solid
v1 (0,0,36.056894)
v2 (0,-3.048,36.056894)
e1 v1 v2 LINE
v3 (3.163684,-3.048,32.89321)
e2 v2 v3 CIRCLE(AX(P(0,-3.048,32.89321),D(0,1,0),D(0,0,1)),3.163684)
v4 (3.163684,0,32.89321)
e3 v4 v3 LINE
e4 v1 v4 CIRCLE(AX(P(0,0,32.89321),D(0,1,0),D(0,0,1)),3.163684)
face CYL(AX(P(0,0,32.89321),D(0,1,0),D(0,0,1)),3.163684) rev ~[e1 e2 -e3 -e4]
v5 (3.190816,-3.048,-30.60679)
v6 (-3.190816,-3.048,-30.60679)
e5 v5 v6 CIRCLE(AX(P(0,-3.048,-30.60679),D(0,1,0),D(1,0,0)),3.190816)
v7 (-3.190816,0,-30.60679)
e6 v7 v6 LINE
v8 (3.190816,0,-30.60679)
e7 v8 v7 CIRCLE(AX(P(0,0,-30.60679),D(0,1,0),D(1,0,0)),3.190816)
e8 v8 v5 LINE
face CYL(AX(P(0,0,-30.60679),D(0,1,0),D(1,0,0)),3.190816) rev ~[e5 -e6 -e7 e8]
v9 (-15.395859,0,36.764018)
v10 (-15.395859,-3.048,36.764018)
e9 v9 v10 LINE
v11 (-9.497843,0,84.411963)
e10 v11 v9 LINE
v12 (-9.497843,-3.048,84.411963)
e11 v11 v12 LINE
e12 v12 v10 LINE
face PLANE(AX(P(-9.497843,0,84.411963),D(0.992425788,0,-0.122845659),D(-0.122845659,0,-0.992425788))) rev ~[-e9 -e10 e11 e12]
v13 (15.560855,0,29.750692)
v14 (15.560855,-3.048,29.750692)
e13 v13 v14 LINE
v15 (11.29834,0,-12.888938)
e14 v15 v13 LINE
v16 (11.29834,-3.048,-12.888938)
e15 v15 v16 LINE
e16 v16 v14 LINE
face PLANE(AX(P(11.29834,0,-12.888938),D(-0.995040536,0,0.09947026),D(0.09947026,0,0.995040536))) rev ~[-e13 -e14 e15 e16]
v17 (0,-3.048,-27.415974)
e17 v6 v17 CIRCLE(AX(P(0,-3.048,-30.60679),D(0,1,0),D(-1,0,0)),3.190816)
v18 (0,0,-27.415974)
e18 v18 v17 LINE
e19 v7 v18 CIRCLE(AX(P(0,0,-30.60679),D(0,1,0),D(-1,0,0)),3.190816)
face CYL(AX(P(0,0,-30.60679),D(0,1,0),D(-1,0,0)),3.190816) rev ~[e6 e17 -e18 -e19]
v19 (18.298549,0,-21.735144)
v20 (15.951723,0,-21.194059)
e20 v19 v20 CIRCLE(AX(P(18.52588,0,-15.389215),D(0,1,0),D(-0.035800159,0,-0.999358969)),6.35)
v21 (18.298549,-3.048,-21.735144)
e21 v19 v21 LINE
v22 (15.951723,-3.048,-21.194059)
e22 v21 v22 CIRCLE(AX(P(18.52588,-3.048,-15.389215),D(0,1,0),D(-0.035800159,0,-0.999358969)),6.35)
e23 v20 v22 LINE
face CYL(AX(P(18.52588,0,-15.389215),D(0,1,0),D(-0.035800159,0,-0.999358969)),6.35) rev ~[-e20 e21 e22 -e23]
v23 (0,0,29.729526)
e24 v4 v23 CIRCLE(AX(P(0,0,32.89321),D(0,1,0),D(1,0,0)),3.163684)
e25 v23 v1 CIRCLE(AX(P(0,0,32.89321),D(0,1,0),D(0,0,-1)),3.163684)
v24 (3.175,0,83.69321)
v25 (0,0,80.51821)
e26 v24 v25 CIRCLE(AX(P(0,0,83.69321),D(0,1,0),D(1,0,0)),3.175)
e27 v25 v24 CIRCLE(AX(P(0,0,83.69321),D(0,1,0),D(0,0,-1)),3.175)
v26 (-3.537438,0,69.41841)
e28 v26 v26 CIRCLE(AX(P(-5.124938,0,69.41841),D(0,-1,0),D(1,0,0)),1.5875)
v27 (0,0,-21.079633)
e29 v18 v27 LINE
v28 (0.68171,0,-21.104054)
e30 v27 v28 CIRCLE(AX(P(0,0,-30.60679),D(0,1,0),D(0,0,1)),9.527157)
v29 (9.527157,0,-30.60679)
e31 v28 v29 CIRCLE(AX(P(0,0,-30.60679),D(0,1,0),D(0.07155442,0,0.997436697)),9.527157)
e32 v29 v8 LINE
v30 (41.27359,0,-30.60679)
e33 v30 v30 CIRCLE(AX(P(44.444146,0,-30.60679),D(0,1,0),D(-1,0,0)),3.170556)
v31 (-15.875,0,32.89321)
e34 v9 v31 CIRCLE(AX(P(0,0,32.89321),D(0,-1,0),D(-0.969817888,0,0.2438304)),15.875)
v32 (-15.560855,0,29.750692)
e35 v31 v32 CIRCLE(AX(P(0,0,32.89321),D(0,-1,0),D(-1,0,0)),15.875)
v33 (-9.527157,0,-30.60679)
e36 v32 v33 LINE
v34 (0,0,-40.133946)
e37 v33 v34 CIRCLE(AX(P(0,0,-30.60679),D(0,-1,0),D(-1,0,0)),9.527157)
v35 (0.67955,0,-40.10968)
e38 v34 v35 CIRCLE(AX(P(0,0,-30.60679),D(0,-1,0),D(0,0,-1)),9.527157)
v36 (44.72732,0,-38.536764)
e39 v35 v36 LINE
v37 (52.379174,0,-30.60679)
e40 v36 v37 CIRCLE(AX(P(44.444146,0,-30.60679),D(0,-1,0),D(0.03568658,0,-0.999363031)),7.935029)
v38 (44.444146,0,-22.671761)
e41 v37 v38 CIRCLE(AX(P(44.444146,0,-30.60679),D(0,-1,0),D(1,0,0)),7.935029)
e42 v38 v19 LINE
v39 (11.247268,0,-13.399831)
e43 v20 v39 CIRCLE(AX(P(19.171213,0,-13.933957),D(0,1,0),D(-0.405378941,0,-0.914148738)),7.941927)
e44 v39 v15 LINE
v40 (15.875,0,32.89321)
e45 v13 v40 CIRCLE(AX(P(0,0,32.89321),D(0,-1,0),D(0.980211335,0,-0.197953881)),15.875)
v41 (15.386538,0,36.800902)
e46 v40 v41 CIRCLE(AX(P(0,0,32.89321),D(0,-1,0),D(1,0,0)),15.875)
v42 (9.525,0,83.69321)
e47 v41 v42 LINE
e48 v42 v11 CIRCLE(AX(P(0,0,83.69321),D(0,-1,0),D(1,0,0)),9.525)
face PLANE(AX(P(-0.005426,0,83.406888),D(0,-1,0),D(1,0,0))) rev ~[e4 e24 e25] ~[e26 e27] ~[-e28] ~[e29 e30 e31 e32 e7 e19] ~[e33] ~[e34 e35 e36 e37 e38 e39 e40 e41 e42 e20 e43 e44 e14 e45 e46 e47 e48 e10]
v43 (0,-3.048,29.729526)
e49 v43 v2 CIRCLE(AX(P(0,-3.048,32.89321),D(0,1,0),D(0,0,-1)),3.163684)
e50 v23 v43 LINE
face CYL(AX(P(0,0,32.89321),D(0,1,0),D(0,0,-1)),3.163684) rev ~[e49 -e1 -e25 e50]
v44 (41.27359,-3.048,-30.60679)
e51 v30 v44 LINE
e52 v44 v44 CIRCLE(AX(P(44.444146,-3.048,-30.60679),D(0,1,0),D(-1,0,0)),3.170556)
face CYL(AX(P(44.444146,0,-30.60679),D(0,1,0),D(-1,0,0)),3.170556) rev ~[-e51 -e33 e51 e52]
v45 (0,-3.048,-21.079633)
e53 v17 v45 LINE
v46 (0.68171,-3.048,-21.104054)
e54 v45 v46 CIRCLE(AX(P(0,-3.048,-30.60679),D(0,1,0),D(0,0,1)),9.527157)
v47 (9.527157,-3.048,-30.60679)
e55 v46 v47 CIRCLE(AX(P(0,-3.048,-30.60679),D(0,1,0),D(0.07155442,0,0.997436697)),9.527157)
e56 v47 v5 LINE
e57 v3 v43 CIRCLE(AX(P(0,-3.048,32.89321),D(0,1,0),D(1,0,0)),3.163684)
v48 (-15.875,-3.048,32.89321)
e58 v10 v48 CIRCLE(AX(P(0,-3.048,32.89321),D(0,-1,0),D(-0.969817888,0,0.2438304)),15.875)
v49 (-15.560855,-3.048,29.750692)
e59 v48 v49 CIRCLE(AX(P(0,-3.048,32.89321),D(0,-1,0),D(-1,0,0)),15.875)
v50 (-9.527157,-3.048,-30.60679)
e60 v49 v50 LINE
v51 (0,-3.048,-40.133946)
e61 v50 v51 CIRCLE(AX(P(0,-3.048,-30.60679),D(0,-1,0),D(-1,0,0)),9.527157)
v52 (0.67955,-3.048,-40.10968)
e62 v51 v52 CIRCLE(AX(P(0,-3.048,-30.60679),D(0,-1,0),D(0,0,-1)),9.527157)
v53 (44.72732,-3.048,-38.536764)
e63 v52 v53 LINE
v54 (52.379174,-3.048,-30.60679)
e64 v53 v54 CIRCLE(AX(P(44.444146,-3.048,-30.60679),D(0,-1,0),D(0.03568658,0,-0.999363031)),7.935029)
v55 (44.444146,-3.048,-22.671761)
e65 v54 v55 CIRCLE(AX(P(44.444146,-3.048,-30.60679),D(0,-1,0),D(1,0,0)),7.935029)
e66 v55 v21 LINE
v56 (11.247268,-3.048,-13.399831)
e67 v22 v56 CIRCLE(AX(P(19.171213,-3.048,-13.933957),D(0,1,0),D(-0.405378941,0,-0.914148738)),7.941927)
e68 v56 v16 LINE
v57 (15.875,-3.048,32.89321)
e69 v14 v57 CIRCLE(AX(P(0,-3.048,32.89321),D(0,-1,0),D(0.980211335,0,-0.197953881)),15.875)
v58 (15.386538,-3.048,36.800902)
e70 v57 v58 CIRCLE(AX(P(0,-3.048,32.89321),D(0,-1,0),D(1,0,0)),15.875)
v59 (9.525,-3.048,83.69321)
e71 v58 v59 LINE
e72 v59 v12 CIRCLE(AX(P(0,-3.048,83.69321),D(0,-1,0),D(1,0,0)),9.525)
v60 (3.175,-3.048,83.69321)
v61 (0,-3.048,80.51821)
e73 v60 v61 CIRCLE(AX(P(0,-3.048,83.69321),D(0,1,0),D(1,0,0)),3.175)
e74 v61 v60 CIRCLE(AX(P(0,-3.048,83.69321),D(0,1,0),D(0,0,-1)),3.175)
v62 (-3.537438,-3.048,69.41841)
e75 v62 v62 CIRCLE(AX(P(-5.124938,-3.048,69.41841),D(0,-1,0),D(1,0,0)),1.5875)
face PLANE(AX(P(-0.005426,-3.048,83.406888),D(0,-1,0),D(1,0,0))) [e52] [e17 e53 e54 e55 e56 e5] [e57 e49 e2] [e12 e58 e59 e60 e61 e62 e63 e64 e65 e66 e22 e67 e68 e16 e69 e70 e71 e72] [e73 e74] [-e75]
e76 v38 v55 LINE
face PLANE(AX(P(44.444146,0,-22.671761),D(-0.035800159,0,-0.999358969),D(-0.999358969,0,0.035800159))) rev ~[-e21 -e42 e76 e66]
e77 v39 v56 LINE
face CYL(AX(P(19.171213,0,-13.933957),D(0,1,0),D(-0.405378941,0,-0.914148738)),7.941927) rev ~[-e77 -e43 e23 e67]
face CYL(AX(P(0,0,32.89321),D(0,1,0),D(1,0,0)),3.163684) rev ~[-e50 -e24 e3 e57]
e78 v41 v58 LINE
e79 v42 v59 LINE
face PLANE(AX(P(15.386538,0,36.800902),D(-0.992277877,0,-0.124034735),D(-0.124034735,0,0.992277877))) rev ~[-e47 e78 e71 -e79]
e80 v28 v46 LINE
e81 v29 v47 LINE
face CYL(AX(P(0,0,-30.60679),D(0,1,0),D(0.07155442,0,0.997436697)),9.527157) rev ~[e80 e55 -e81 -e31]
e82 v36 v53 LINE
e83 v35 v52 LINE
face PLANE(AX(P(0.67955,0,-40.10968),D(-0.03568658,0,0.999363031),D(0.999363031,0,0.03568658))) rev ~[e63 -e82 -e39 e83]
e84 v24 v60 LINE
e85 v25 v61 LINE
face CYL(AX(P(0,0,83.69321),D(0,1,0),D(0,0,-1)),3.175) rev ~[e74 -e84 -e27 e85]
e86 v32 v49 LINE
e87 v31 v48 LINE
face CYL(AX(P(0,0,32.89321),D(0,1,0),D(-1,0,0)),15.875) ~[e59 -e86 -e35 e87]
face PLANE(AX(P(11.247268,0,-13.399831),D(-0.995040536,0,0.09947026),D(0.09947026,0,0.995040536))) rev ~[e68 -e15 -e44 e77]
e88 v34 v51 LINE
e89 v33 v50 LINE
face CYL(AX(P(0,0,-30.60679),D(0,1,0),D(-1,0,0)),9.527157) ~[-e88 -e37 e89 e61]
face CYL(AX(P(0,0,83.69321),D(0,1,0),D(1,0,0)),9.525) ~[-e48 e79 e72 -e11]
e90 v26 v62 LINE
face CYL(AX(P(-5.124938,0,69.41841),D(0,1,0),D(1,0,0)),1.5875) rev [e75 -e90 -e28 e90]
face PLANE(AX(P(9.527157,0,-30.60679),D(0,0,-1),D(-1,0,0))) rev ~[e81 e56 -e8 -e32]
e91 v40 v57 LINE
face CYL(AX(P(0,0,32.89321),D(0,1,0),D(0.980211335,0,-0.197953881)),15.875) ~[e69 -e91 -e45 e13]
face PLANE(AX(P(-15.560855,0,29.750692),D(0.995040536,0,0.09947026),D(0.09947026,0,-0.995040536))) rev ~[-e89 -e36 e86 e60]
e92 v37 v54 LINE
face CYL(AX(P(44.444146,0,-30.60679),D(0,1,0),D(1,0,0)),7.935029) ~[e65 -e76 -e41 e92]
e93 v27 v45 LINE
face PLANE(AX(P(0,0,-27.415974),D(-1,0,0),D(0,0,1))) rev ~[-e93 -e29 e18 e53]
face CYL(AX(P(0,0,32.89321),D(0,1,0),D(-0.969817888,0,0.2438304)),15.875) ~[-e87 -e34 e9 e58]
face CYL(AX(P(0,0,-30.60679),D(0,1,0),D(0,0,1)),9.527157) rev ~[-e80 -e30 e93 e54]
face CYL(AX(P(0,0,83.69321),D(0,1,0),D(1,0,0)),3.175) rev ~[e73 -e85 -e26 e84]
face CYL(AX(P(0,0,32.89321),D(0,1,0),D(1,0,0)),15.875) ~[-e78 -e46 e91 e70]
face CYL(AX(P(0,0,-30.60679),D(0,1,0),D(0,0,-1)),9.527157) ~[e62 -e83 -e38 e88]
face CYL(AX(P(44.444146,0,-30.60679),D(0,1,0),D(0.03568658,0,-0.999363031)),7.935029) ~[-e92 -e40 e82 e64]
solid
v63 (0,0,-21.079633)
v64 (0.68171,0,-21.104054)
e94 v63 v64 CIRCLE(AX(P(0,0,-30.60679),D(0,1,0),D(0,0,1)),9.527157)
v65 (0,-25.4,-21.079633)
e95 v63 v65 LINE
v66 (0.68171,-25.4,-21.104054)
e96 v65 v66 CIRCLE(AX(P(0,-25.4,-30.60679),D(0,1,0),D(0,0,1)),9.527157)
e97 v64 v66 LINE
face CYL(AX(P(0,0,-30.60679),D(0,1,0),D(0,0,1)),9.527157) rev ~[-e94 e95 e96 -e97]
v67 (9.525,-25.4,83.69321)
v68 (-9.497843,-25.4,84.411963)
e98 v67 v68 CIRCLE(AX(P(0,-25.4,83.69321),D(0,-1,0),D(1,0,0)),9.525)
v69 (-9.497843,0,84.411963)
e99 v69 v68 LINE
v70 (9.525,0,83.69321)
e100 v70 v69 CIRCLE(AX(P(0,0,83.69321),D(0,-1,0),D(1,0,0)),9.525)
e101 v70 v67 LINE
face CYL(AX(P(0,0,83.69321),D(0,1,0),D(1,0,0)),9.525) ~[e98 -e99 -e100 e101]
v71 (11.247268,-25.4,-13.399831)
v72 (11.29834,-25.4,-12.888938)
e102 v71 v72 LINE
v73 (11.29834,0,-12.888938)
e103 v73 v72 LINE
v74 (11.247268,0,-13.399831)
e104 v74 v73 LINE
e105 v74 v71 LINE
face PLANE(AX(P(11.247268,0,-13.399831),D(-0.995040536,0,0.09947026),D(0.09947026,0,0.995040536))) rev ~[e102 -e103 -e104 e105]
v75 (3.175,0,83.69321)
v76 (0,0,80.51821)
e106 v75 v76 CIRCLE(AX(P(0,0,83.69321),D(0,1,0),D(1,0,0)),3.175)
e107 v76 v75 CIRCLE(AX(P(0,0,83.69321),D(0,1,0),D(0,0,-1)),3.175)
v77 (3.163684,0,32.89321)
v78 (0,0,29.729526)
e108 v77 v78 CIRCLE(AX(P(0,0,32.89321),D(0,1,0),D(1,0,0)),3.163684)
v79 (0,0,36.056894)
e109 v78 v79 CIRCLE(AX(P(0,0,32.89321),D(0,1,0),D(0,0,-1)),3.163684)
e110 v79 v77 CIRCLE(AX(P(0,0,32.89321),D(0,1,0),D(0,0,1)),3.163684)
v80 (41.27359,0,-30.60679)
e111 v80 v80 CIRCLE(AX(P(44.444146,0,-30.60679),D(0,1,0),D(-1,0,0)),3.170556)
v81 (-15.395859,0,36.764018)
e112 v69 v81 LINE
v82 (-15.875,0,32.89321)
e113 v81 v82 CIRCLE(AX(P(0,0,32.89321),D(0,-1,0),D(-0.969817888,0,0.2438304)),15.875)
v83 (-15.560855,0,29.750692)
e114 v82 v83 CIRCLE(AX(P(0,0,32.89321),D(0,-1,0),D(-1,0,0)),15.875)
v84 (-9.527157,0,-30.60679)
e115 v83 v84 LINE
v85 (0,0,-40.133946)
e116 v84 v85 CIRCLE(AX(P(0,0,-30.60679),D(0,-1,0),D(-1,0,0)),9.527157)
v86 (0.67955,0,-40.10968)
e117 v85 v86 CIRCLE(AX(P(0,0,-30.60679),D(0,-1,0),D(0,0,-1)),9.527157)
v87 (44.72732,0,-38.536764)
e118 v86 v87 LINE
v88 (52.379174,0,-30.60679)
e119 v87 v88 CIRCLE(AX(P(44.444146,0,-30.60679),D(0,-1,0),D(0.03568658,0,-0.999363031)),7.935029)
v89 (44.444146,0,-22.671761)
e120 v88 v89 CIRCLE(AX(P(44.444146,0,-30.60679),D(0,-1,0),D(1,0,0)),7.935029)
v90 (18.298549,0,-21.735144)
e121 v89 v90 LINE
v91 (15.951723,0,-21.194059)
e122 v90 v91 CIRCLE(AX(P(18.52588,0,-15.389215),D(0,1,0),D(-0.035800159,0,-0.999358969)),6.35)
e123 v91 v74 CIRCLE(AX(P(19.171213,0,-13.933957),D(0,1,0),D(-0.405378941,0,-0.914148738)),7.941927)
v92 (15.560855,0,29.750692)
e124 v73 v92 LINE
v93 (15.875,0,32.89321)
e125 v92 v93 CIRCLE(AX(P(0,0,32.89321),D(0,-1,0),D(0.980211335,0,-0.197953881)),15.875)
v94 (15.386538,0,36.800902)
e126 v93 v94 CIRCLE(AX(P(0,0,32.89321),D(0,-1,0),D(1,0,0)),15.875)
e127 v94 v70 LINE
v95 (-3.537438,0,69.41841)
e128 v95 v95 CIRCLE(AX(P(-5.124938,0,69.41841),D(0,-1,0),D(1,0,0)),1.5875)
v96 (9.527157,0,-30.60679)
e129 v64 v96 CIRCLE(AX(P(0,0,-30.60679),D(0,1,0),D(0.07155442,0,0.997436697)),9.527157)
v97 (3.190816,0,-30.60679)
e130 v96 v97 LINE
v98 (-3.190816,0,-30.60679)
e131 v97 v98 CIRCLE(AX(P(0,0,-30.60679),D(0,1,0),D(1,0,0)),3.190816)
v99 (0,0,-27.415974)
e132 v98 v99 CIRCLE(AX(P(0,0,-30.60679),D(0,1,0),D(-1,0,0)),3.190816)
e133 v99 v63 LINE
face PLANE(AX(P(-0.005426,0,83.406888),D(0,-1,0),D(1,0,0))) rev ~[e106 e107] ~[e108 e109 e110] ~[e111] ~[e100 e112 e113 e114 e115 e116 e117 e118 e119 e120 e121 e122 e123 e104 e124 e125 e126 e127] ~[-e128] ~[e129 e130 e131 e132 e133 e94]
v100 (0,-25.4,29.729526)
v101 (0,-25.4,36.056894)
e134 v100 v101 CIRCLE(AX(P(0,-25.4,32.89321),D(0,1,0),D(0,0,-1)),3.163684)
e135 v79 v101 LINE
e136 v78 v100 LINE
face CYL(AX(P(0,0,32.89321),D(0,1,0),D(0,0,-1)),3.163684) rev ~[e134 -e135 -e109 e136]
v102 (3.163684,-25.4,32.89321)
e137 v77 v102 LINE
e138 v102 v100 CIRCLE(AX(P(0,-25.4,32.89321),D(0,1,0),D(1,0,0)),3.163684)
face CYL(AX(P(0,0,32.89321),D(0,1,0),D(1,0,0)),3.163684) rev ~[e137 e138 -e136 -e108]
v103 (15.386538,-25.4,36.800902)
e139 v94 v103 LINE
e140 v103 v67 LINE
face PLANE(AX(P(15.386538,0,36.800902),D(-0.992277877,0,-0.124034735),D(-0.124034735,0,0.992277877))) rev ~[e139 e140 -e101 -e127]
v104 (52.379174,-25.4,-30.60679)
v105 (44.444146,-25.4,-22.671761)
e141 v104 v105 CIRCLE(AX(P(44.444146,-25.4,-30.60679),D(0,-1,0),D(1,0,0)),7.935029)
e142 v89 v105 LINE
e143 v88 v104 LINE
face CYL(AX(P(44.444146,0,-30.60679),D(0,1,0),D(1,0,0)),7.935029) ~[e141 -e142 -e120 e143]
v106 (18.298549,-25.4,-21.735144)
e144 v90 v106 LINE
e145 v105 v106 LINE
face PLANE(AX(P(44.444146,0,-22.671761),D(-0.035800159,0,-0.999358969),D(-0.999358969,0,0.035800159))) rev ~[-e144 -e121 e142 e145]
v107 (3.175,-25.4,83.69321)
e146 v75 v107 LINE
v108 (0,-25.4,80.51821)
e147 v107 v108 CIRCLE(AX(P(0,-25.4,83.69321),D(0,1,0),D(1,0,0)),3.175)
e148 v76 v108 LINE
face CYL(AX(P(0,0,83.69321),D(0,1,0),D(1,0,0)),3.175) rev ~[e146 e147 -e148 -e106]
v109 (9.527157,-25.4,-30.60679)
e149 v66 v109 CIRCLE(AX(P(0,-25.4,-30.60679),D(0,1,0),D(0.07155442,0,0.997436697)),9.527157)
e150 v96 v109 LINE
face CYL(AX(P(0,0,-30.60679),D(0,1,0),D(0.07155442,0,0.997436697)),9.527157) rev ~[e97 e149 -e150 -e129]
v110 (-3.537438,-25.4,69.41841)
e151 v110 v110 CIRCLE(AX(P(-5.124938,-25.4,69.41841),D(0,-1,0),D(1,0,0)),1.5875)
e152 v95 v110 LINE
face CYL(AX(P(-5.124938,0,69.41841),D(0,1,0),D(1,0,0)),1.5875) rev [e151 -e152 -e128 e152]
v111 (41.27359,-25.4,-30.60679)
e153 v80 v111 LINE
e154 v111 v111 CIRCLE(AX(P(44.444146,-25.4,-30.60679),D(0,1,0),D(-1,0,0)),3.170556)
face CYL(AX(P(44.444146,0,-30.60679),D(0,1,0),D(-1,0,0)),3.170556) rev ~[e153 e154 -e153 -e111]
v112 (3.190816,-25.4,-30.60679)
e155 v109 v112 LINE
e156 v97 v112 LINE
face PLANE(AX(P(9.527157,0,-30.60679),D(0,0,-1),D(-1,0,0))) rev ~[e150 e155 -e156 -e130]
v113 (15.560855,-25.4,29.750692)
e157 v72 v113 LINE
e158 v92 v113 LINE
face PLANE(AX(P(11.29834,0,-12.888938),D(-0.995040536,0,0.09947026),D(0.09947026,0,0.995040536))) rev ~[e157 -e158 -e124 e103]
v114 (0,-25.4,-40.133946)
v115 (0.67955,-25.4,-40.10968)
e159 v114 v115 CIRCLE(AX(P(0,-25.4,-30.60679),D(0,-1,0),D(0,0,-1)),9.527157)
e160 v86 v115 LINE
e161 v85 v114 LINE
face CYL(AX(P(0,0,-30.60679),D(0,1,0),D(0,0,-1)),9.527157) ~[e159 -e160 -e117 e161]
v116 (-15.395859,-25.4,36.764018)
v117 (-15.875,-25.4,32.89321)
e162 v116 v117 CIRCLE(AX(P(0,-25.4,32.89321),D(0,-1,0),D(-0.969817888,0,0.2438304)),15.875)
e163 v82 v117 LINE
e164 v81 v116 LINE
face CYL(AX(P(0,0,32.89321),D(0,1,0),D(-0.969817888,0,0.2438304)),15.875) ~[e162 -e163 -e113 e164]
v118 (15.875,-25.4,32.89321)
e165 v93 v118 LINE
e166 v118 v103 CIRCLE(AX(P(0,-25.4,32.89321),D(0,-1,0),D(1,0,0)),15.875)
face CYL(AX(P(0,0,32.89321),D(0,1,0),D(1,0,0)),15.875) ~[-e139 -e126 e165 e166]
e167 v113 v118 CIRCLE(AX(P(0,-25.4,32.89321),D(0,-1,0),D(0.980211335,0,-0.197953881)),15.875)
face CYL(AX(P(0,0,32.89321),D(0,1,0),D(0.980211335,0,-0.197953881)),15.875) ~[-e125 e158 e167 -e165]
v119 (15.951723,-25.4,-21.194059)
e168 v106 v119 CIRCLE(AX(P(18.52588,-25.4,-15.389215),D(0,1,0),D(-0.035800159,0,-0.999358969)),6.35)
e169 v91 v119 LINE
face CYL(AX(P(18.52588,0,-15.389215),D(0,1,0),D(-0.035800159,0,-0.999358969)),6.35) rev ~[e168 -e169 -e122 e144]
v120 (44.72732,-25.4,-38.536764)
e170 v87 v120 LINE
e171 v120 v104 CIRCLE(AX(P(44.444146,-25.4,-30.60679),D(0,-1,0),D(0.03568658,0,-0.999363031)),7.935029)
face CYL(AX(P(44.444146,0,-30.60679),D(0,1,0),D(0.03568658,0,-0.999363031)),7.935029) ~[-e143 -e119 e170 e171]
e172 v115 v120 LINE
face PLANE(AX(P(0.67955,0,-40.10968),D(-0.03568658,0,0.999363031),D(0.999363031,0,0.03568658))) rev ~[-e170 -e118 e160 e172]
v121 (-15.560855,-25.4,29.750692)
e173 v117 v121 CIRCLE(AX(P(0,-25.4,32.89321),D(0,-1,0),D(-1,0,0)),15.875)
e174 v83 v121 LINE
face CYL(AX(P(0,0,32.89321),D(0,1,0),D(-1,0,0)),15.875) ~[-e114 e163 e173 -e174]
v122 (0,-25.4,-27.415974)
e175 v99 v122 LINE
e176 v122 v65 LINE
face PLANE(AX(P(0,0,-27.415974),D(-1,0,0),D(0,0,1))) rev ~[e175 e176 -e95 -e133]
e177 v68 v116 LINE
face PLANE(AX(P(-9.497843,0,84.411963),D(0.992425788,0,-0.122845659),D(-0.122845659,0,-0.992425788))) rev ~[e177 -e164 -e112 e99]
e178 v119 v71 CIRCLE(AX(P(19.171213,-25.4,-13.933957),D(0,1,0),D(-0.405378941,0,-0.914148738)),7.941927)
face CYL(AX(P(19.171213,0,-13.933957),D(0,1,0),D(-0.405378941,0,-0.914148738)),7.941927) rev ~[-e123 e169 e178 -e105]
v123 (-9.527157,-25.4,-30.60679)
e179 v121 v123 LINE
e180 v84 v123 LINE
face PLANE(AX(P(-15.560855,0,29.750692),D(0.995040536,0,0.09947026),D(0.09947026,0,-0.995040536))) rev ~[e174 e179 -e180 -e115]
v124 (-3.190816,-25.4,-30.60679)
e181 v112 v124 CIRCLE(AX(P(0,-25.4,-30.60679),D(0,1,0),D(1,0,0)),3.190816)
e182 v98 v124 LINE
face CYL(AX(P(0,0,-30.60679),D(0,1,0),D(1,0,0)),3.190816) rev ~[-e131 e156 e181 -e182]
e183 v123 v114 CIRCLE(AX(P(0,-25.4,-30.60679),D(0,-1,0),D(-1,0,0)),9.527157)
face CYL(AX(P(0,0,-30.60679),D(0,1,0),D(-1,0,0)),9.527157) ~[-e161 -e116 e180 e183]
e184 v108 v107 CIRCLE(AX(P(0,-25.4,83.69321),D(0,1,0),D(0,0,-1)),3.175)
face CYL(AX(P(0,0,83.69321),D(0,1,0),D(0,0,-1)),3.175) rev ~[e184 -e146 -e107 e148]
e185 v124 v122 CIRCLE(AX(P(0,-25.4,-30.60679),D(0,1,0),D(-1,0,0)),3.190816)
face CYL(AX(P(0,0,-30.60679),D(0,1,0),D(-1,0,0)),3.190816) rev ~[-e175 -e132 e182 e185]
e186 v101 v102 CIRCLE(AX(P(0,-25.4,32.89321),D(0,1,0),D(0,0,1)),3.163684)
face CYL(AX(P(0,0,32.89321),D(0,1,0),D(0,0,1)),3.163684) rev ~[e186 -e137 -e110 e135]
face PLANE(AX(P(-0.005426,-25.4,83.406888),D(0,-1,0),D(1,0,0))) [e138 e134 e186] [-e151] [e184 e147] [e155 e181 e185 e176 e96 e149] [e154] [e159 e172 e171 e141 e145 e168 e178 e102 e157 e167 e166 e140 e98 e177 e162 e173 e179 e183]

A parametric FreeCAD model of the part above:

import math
import FreeCAD as App
import Part
import Sketcher
Q = App.Units.Quantity

doc = App.newDocument("Part")
params = doc.addObject("Spreadsheet::Sheet", "Params")
for row, (alias, value) in enumerate([
    ("sketch1_radius", "0.25 in"),
    ("sketch1_diameter", "0.125 in"),
    ("sketch1_radius2", "0.625 in"),
    ("sketch1_radius3", "0.375 in"),
    ("sketch1_radius4", "0.125 in"),
    ("pad1_length", "1 in"),
    ("sketch2_radius", "0.25 in"),
    ("sketch2_diameter", "0.125 in"),
    ("sketch2_radius2", "0.625 in"),
    ("sketch2_radius3", "0.375 in"),
    ("sketch2_radius4", "0.125 in"),
    ("pad2_length", "0.12 in"),
], start=1):
    params.set(f"A{row}", alias)
    params.set(f"B{row}", "=" + value)
    params.setAlias(f"B{row}", alias)

body = doc.addObject("PartDesign::Body", "Body")

# Sketch on XZ plane
sketch1 = body.newObject("Sketcher::SketchObject", "Sketch")
sketch1.AttachmentSupport = (doc.getObject("XZ_Plane"), [""])
sketch1.MapMode = "FlatFace"
sketch1.addGeometry([
    Part.ArcOfCircle(Part.Circle(App.Vector(0, -30.60679, 0), App.Vector(0, 0, 1), 9.527157), math.radians(-90), math.radians(-85.909751)),  # 0
    Part.LineSegment(App.Vector(0.67955, -40.10968, 0), App.Vector(44.72732, -38.536764, 0)),  # 1
    Part.ArcOfCircle(Part.Circle(App.Vector(44.444146, -30.60679, 0), App.Vector(0, 0, 1), 7.935029), math.radians(-87.954875), math.radians(0)),  # 2
    Part.ArcOfCircle(Part.Circle(App.Vector(44.444146, -30.60679, 0), App.Vector(0, 0, 1), 7.935029), math.radians(0), math.radians(90)),  # 3
    Part.LineSegment(App.Vector(44.444146, -22.671761, 0), App.Vector(18.298549, -21.735144, 0)),  # 4
    Part.ArcOfCircle(Part.Circle(App.Vector(18.52588, -15.389215, 0), App.Vector(0, 0, 1), 6.35), math.radians(-113.914876), math.radians(-92.051636)),  # 5
    Part.ArcOfCircle(Part.Circle(App.Vector(19.171213, -13.933957, 0), App.Vector(0, 0, 1), 7.941927), math.radians(176.143722), math.radians(246.085124)),  # 6
    Part.LineSegment(App.Vector(11.247268, -13.399831, 0), App.Vector(11.29834, -12.888938, 0)),  # 7
    Part.LineSegment(App.Vector(11.29834, -12.888938, 0), App.Vector(15.560855, 29.750692, 0)),  # 8
    Part.ArcOfCircle(Part.Circle(App.Vector(0, 32.89321, 0), App.Vector(0, 0, 1), 15.875), math.radians(-11.417333), math.radians(0)),  # 9
    Part.ArcOfCircle(Part.Circle(App.Vector(0, 32.89321, 0), App.Vector(0, 0, 1), 15.875), math.radians(0), math.radians(14.250033)),  # 10
    Part.LineSegment(App.Vector(15.386538, 36.800902, 0), App.Vector(9.525, 83.69321, 0)),  # 11
    Part.ArcOfCircle(Part.Circle(App.Vector(0, 83.69321, 0), App.Vector(0, 0, 1), 9.525), math.radians(0), math.radians(175.672366)),  # 12
    Part.LineSegment(App.Vector(-9.497843, 84.411963, 0), App.Vector(-15.395859, 36.764018, 0)),  # 13
    Part.ArcOfCircle(Part.Circle(App.Vector(0, 32.89321, 0), App.Vector(0, 0, 1), 15.875), math.radians(165.887275), math.radians(180)),  # 14
    Part.ArcOfCircle(Part.Circle(App.Vector(0, 32.89321, 0), App.Vector(0, 0, 1), 15.875), math.radians(-180), math.radians(-168.582667)),  # 15
    Part.LineSegment(App.Vector(-15.560855, 29.750692, 0), App.Vector(-9.527157, -30.60679, 0)),  # 16
    Part.ArcOfCircle(Part.Circle(App.Vector(0, -30.60679, 0), App.Vector(0, 0, 1), 9.527157), math.radians(180), math.radians(270)),  # 17
    Part.ArcOfCircle(Part.Circle(App.Vector(0, -30.60679, 0), App.Vector(0, 0, 1), 9.527157), math.radians(0), math.radians(85.896727)),  # 18
    Part.LineSegment(App.Vector(9.527157, -30.60679, 0), App.Vector(3.190816, -30.60679, 0)),  # 19
    Part.ArcOfCircle(Part.Circle(App.Vector(0, -30.60679, 0), App.Vector(0, 0, 1), 3.190816), math.radians(180), math.radians(360)),  # 20
    Part.ArcOfCircle(Part.Circle(App.Vector(0, -30.60679, 0), App.Vector(0, 0, 1), 3.190816), math.radians(90), math.radians(180)),  # 21
    Part.LineSegment(App.Vector(0, -27.415974, 0), App.Vector(0, -21.079633, 0)),  # 22
    Part.ArcOfCircle(Part.Circle(App.Vector(0, -30.60679, 0), App.Vector(0, 0, 1), 9.527157), math.radians(85.896727), math.radians(90)),  # 23
    Part.Circle(App.Vector(44.444146, -30.60679, 0), App.Vector(0, 0, 1), 3.170556),  # 24
    Part.ArcOfCircle(Part.Circle(App.Vector(0, 32.89321, 0), App.Vector(0, 0, 1), 3.163684), math.radians(0), math.radians(90)),  # 25
    Part.ArcOfCircle(Part.Circle(App.Vector(0, 32.89321, 0), App.Vector(0, 0, 1), 3.163684), math.radians(-90), math.radians(0)),  # 26
    Part.ArcOfCircle(Part.Circle(App.Vector(0, 32.89321, 0), App.Vector(0, 0, 1), 3.163684), math.radians(90), math.radians(270)),  # 27
    Part.Circle(App.Vector(-5.124938, 69.41841, 0), App.Vector(0, 0, 1), 1.5875),  # 28
    Part.ArcOfCircle(Part.Circle(App.Vector(0, 83.69321, 0), App.Vector(0, 0, 1), 3.175), math.radians(0), math.radians(270)),  # 29
    Part.ArcOfCircle(Part.Circle(App.Vector(0, 83.69321, 0), App.Vector(0, 0, 1), 3.175), math.radians(-90), math.radians(0)),  # 30
], False)
sketch1.addConstraint([
    Sketcher.Constraint("Coincident", 0, 2, 1, 1),
    Sketcher.Constraint("Tangent", 1, 2, 2, 1),
    Sketcher.Constraint("Tangent", 2, 2, 3, 1),
    Sketcher.Constraint("Coincident", 3, 2, 4, 1),
    Sketcher.Constraint("Tangent", 4, 2, 5, 2),
    Sketcher.Constraint("Tangent", 5, 1, 6, 2),
    Sketcher.Constraint("Coincident", 6, 1, 7, 1),
    Sketcher.Constraint("Coincident", 7, 2, 8, 1),
    Sketcher.Constraint("Coincident", 8, 2, 9, 1),
    Sketcher.Constraint("Tangent", 9, 2, 10, 1),
    Sketcher.Constraint("Coincident", 10, 2, 11, 1),
    Sketcher.Constraint("Coincident", 11, 2, 12, 1),
    Sketcher.Constraint("Coincident", 12, 2, 13, 1),
    Sketcher.Constraint("Coincident", 13, 2, 14, 1),
    Sketcher.Constraint("Tangent", 14, 2, 15, 1),
    Sketcher.Constraint("Coincident", 15, 2, 16, 1),
    Sketcher.Constraint("Coincident", 16, 2, 17, 1),
    Sketcher.Constraint("Tangent", 17, 2, 0, 1),
    Sketcher.Constraint("Coincident", 18, 1, 19, 1),
    Sketcher.Constraint("Coincident", 19, 2, 20, 2),
    Sketcher.Constraint("Tangent", 20, 1, 21, 2),
    Sketcher.Constraint("Coincident", 21, 1, 22, 1),
    Sketcher.Constraint("Coincident", 22, 2, 23, 2),
    Sketcher.Constraint("Tangent", 23, 1, 18, 2),
    Sketcher.Constraint("Tangent", 25, 1, 26, 2),
    Sketcher.Constraint("Tangent", 26, 1, 27, 2),
    Sketcher.Constraint("Tangent", 27, 1, 25, 2),
    Sketcher.Constraint("Tangent", 29, 1, 30, 2),
    Sketcher.Constraint("Coincident", 30, 1, 29, 2),
    Sketcher.Constraint("Horizontal", 19),
    Sketcher.Constraint("Vertical", 22),
    Sketcher.Constraint("Coincident", 14, 3, 9, 3),
    Sketcher.Constraint("Coincident", 18, 3, 0, 3),
    Sketcher.Constraint("Coincident", 20, 3, 0, 3),
    Sketcher.Constraint("Coincident", 24, 3, 2, 3),
    Sketcher.Constraint("Coincident", 25, 3, 9, 3),
    Sketcher.Constraint("Coincident", 29, 3, 12, 3),
    Sketcher.Constraint("Equal", 2, 3),
    Sketcher.Constraint("Equal", 9, 10),
    Sketcher.Constraint("Equal", 10, 14),
    Sketcher.Constraint("Equal", 14, 15),
    Sketcher.Constraint("Equal", 0, 17),
    Sketcher.Constraint("Equal", 17, 18),
    Sketcher.Constraint("Equal", 20, 21),
    Sketcher.Constraint("Equal", 18, 23),
    Sketcher.Constraint("Symmetric", 9, 2, 14, 2, -2),
    Sketcher.Constraint("Symmetric", 16, 2, 18, 1, -2),
    Sketcher.Constraint("PointOnObject", 12, 3, -2),
    Sketcher.Constraint("PointOnObject", 17, 2, -2),
    Sketcher.Constraint("PointOnObject", 21, 1, -2),
    Sketcher.Constraint("PointOnObject", 26, 1, -2),
    Sketcher.Constraint("PointOnObject", 27, 1, -2),
    Sketcher.Constraint("PointOnObject", 30, 1, -2),
    Sketcher.Constraint("Parallel", 7, 8),
    Sketcher.Constraint("Horizontal", 0, 3, 2, 3),
    Sketcher.Constraint("Horizontal", 24, 3, 2, 2),
    Sketcher.Constraint("Horizontal", 27, 3, 9, 2),
    Sketcher.Constraint("Horizontal", 30, 3, 11, 2),
    Sketcher.Constraint("Horizontal", 8, 2, 15, 2),
    Sketcher.Constraint("Horizontal", 2, 2, 16, 2),
    Sketcher.Constraint("Horizontal", 19, 2, 20, 1),
    Sketcher.Constraint("Horizontal", 14, 2, 25, 1),
    Sketcher.Constraint("Horizontal", 11, 2, 29, 1),
    Sketcher.Constraint("Vertical", 24, 3, 3, 2),
    Sketcher.Constraint("Radius", 5, Q("0.25 in")),
    Sketcher.Constraint("Diameter", 28, Q("0.125 in")),
    Sketcher.Constraint("Radius", 9, Q("0.625 in")),
    Sketcher.Constraint("Radius", 12, Q("0.375 in")),
    Sketcher.Constraint("Radius", 29, Q("0.125 in")),
    Sketcher.Constraint("DistanceY", 9, 3, 12, 3, Q("2 in")),
    Sketcher.Constraint("DistanceY", 0, 3, 9, 3, Q("2.5 in")),
    Sketcher.Constraint("Diameter", 24, 6.341112),
    Sketcher.Constraint("Radius", 2, 7.935029),
    Sketcher.Constraint("DistanceY", 28, 3, 12, 3, Q("0.562 in")),
    Sketcher.Constraint("Radius", 0, 9.527157),
    Sketcher.Constraint("Radius", 6, 7.941927),
    Sketcher.Constraint("Radius", 20, 3.190816),
    Sketcher.Constraint("Radius", 25, 3.163684),
    Sketcher.Constraint("Distance", 7, 0.51344),
    Sketcher.Constraint("DistanceY", 0, 3, -1, 1, 30.60679),
    Sketcher.Constraint("DistanceX", -1, 1, 5, 3, 18.52588),
    Sketcher.Constraint("DistanceX", -1, 1, 0, 2, 0.67955),
    Sketcher.Constraint("DistanceX", -1, 1, 1, 2, 44.72732),
    Sketcher.Constraint("DistanceX", -1, 1, 4, 2, 18.298549),
    Sketcher.Constraint("DistanceY", 5, 1, -1, 1, 21.194059),
    Sketcher.Constraint("DistanceX", -1, 1, 6, 1, 11.247268),
    Sketcher.Constraint("DistanceX", -1, 1, 10, 2, 15.386538),
    Sketcher.Constraint("DistanceX", 13, 2, -1, 1, 15.395859),
    Sketcher.Constraint("DistanceX", -1, 1, 23, 1, 0.68171),
    Sketcher.Constraint("DistanceY", 8, 2, 10, 2, 7.05021),
    Sketcher.Constraint("Distance", 13, 48.011596),
    Sketcher.Constraint("DistanceX", 28, 3, -1, 1, 5.124938),
])
sketch1.setExpression("Constraints[64]", "Params.sketch1_radius")
sketch1.setExpression("Constraints[65]", "Params.sketch1_diameter")
sketch1.setExpression("Constraints[66]", "Params.sketch1_radius2")
sketch1.setExpression("Constraints[67]", "Params.sketch1_radius3")
sketch1.setExpression("Constraints[68]", "Params.sketch1_radius4")
pad1 = body.newObject("PartDesign::Pad", "Pad")
pad1.Profile = sketch1
pad1.setExpression("Length", "Params.pad1_length")
body2 = doc.addObject("PartDesign::Body", "Body001")

# Sketch on XZ plane
sketch2 = body2.newObject("Sketcher::SketchObject", "Sketch001")
sketch2.AttachmentSupport = (doc.getObject("XZ_Plane001"), [""])
sketch2.MapMode = "FlatFace"
sketch2.addGeometry([
    Part.ArcOfCircle(Part.Circle(App.Vector(0, -30.60679, 0), App.Vector(0, 0, 1), 9.527157), math.radians(-90), math.radians(-85.909751)),  # 0
    Part.LineSegment(App.Vector(0.67955, -40.10968, 0), App.Vector(44.72732, -38.536764, 0)),  # 1
    Part.ArcOfCircle(Part.Circle(App.Vector(44.444146, -30.60679, 0), App.Vector(0, 0, 1), 7.935029), math.radians(-87.954875), math.radians(0)),  # 2
    Part.ArcOfCircle(Part.Circle(App.Vector(44.444146, -30.60679, 0), App.Vector(0, 0, 1), 7.935029), math.radians(0), math.radians(90)),  # 3
    Part.LineSegment(App.Vector(44.444146, -22.671761, 0), App.Vector(18.298549, -21.735144, 0)),  # 4
    Part.ArcOfCircle(Part.Circle(App.Vector(18.52588, -15.389215, 0), App.Vector(0, 0, 1), 6.35), math.radians(-113.914876), math.radians(-92.051636)),  # 5
    Part.ArcOfCircle(Part.Circle(App.Vector(19.171213, -13.933957, 0), App.Vector(0, 0, 1), 7.941927), math.radians(176.143722), math.radians(246.085124)),  # 6
    Part.LineSegment(App.Vector(11.247268, -13.399831, 0), App.Vector(11.29834, -12.888938, 0)),  # 7
    Part.LineSegment(App.Vector(11.29834, -12.888938, 0), App.Vector(15.560855, 29.750692, 0)),  # 8
    Part.ArcOfCircle(Part.Circle(App.Vector(0, 32.89321, 0), App.Vector(0, 0, 1), 15.875), math.radians(-11.417333), math.radians(0)),  # 9
    Part.ArcOfCircle(Part.Circle(App.Vector(0, 32.89321, 0), App.Vector(0, 0, 1), 15.875), math.radians(0), math.radians(14.250033)),  # 10
    Part.LineSegment(App.Vector(15.386538, 36.800902, 0), App.Vector(9.525, 83.69321, 0)),  # 11
    Part.ArcOfCircle(Part.Circle(App.Vector(0, 83.69321, 0), App.Vector(0, 0, 1), 9.525), math.radians(0), math.radians(175.672366)),  # 12
    Part.LineSegment(App.Vector(-9.497843, 84.411963, 0), App.Vector(-15.395859, 36.764018, 0)),  # 13
    Part.ArcOfCircle(Part.Circle(App.Vector(0, 32.89321, 0), App.Vector(0, 0, 1), 15.875), math.radians(165.887275), math.radians(180)),  # 14
    Part.ArcOfCircle(Part.Circle(App.Vector(0, 32.89321, 0), App.Vector(0, 0, 1), 15.875), math.radians(-180), math.radians(-168.582667)),  # 15
    Part.LineSegment(App.Vector(-15.560855, 29.750692, 0), App.Vector(-9.527157, -30.60679, 0)),  # 16
    Part.ArcOfCircle(Part.Circle(App.Vector(0, -30.60679, 0), App.Vector(0, 0, 1), 9.527157), math.radians(180), math.radians(270)),  # 17
    Part.ArcOfCircle(Part.Circle(App.Vector(0, -30.60679, 0), App.Vector(0, 0, 1), 9.527157), math.radians(0), math.radians(85.896727)),  # 18
    Part.LineSegment(App.Vector(9.527157, -30.60679, 0), App.Vector(3.190816, -30.60679, 0)),  # 19
    Part.ArcOfCircle(Part.Circle(App.Vector(0, -30.60679, 0), App.Vector(0, 0, 1), 3.190816), math.radians(180), math.radians(360)),  # 20
    Part.ArcOfCircle(Part.Circle(App.Vector(0, -30.60679, 0), App.Vector(0, 0, 1), 3.190816), math.radians(90), math.radians(180)),  # 21
    Part.LineSegment(App.Vector(0, -27.415974, 0), App.Vector(0, -21.079633, 0)),  # 22
    Part.ArcOfCircle(Part.Circle(App.Vector(0, -30.60679, 0), App.Vector(0, 0, 1), 9.527157), math.radians(85.896727), math.radians(90)),  # 23
    Part.Circle(App.Vector(44.444146, -30.60679, 0), App.Vector(0, 0, 1), 3.170556),  # 24
    Part.ArcOfCircle(Part.Circle(App.Vector(0, 32.89321, 0), App.Vector(0, 0, 1), 3.163684), math.radians(0), math.radians(90)),  # 25
    Part.ArcOfCircle(Part.Circle(App.Vector(0, 32.89321, 0), App.Vector(0, 0, 1), 3.163684), math.radians(-90), math.radians(0)),  # 26
    Part.ArcOfCircle(Part.Circle(App.Vector(0, 32.89321, 0), App.Vector(0, 0, 1), 3.163684), math.radians(90), math.radians(270)),  # 27
    Part.Circle(App.Vector(-5.124938, 69.41841, 0), App.Vector(0, 0, 1), 1.5875),  # 28
    Part.ArcOfCircle(Part.Circle(App.Vector(0, 83.69321, 0), App.Vector(0, 0, 1), 3.175), math.radians(0), math.radians(270)),  # 29
    Part.ArcOfCircle(Part.Circle(App.Vector(0, 83.69321, 0), App.Vector(0, 0, 1), 3.175), math.radians(-90), math.radians(0)),  # 30
], False)
sketch2.addConstraint([
    Sketcher.Constraint("Coincident", 0, 2, 1, 1),
    Sketcher.Constraint("Tangent", 1, 2, 2, 1),
    Sketcher.Constraint("Tangent", 2, 2, 3, 1),
    Sketcher.Constraint("Coincident", 3, 2, 4, 1),
    Sketcher.Constraint("Tangent", 4, 2, 5, 2),
    Sketcher.Constraint("Tangent", 5, 1, 6, 2),
    Sketcher.Constraint("Coincident", 6, 1, 7, 1),
    Sketcher.Constraint("Coincident", 7, 2, 8, 1),
    Sketcher.Constraint("Coincident", 8, 2, 9, 1),
    Sketcher.Constraint("Tangent", 9, 2, 10, 1),
    Sketcher.Constraint("Coincident", 10, 2, 11, 1),
    Sketcher.Constraint("Coincident", 11, 2, 12, 1),
    Sketcher.Constraint("Coincident", 12, 2, 13, 1),
    Sketcher.Constraint("Coincident", 13, 2, 14, 1),
    Sketcher.Constraint("Tangent", 14, 2, 15, 1),
    Sketcher.Constraint("Coincident", 15, 2, 16, 1),
    Sketcher.Constraint("Coincident", 16, 2, 17, 1),
    Sketcher.Constraint("Tangent", 17, 2, 0, 1),
    Sketcher.Constraint("Coincident", 18, 1, 19, 1),
    Sketcher.Constraint("Coincident", 19, 2, 20, 2),
    Sketcher.Constraint("Tangent", 20, 1, 21, 2),
    Sketcher.Constraint("Coincident", 21, 1, 22, 1),
    Sketcher.Constraint("Coincident", 22, 2, 23, 2),
    Sketcher.Constraint("Tangent", 23, 1, 18, 2),
    Sketcher.Constraint("Tangent", 25, 1, 26, 2),
    Sketcher.Constraint("Tangent", 26, 1, 27, 2),
    Sketcher.Constraint("Tangent", 27, 1, 25, 2),
    Sketcher.Constraint("Tangent", 29, 1, 30, 2),
    Sketcher.Constraint("Coincident", 30, 1, 29, 2),
    Sketcher.Constraint("Horizontal", 19),
    Sketcher.Constraint("Vertical", 22),
    Sketcher.Constraint("Coincident", 14, 3, 9, 3),
    Sketcher.Constraint("Coincident", 18, 3, 0, 3),
    Sketcher.Constraint("Coincident", 20, 3, 0, 3),
    Sketcher.Constraint("Coincident", 24, 3, 2, 3),
    Sketcher.Constraint("Coincident", 25, 3, 9, 3),
    Sketcher.Constraint("Coincident", 29, 3, 12, 3),
    Sketcher.Constraint("Equal", 2, 3),
    Sketcher.Constraint("Equal", 9, 10),
    Sketcher.Constraint("Equal", 10, 14),
    Sketcher.Constraint("Equal", 14, 15),
    Sketcher.Constraint("Equal", 0, 17),
    Sketcher.Constraint("Equal", 17, 18),
    Sketcher.Constraint("Equal", 20, 21),
    Sketcher.Constraint("Equal", 18, 23),
    Sketcher.Constraint("Symmetric", 9, 2, 14, 2, -2),
    Sketcher.Constraint("Symmetric", 16, 2, 18, 1, -2),
    Sketcher.Constraint("PointOnObject", 12, 3, -2),
    Sketcher.Constraint("PointOnObject", 17, 2, -2),
    Sketcher.Constraint("PointOnObject", 21, 1, -2),
    Sketcher.Constraint("PointOnObject", 26, 1, -2),
    Sketcher.Constraint("PointOnObject", 27, 1, -2),
    Sketcher.Constraint("PointOnObject", 30, 1, -2),
    Sketcher.Constraint("Parallel", 7, 8),
    Sketcher.Constraint("Horizontal", 0, 3, 2, 3),
    Sketcher.Constraint("Horizontal", 24, 3, 2, 2),
    Sketcher.Constraint("Horizontal", 27, 3, 9, 2),
    Sketcher.Constraint("Horizontal", 30, 3, 11, 2),
    Sketcher.Constraint("Horizontal", 8, 2, 15, 2),
    Sketcher.Constraint("Horizontal", 2, 2, 16, 2),
    Sketcher.Constraint("Horizontal", 19, 2, 20, 1),
    Sketcher.Constraint("Horizontal", 14, 2, 25, 1),
    Sketcher.Constraint("Horizontal", 11, 2, 29, 1),
    Sketcher.Constraint("Vertical", 24, 3, 3, 2),
    Sketcher.Constraint("Radius", 5, Q("0.25 in")),
    Sketcher.Constraint("Diameter", 28, Q("0.125 in")),
    Sketcher.Constraint("Radius", 9, Q("0.625 in")),
    Sketcher.Constraint("Radius", 12, Q("0.375 in")),
    Sketcher.Constraint("Radius", 29, Q("0.125 in")),
    Sketcher.Constraint("DistanceY", 9, 3, 12, 3, Q("2 in")),
    Sketcher.Constraint("DistanceY", 0, 3, 9, 3, Q("2.5 in")),
    Sketcher.Constraint("Diameter", 24, 6.341112),
    Sketcher.Constraint("Radius", 2, 7.935029),
    Sketcher.Constraint("DistanceY", 28, 3, 12, 3, Q("0.562 in")),
    Sketcher.Constraint("Radius", 0, 9.527157),
    Sketcher.Constraint("Radius", 6, 7.941927),
    Sketcher.Constraint("Radius", 20, 3.190816),
    Sketcher.Constraint("Radius", 25, 3.163684),
    Sketcher.Constraint("Distance", 7, 0.51344),
    Sketcher.Constraint("DistanceY", 0, 3, -1, 1, 30.60679),
    Sketcher.Constraint("DistanceX", -1, 1, 5, 3, 18.52588),
    Sketcher.Constraint("DistanceX", -1, 1, 0, 2, 0.67955),
    Sketcher.Constraint("DistanceX", -1, 1, 1, 2, 44.72732),
    Sketcher.Constraint("DistanceX", -1, 1, 4, 2, 18.298549),
    Sketcher.Constraint("DistanceY", 5, 1, -1, 1, 21.194059),
    Sketcher.Constraint("DistanceX", -1, 1, 6, 1, 11.247268),
    Sketcher.Constraint("DistanceX", -1, 1, 10, 2, 15.386538),
    Sketcher.Constraint("DistanceX", 13, 2, -1, 1, 15.395859),
    Sketcher.Constraint("DistanceX", -1, 1, 23, 1, 0.68171),
    Sketcher.Constraint("DistanceY", 8, 2, 10, 2, 7.05021),
    Sketcher.Constraint("Distance", 13, 48.011596),
    Sketcher.Constraint("DistanceX", 28, 3, -1, 1, 5.124938),
])
sketch2.setExpression("Constraints[64]", "Params.sketch2_radius")
sketch2.setExpression("Constraints[65]", "Params.sketch2_diameter")
sketch2.setExpression("Constraints[66]", "Params.sketch2_radius2")
sketch2.setExpression("Constraints[67]", "Params.sketch2_radius3")
sketch2.setExpression("Constraints[68]", "Params.sketch2_radius4")
pad2 = body2.newObject("PartDesign::Pad", "Pad001")
pad2.Profile = sketch2
pad2.setExpression("Length", "Params.pad2_length")

doc.recompute()
